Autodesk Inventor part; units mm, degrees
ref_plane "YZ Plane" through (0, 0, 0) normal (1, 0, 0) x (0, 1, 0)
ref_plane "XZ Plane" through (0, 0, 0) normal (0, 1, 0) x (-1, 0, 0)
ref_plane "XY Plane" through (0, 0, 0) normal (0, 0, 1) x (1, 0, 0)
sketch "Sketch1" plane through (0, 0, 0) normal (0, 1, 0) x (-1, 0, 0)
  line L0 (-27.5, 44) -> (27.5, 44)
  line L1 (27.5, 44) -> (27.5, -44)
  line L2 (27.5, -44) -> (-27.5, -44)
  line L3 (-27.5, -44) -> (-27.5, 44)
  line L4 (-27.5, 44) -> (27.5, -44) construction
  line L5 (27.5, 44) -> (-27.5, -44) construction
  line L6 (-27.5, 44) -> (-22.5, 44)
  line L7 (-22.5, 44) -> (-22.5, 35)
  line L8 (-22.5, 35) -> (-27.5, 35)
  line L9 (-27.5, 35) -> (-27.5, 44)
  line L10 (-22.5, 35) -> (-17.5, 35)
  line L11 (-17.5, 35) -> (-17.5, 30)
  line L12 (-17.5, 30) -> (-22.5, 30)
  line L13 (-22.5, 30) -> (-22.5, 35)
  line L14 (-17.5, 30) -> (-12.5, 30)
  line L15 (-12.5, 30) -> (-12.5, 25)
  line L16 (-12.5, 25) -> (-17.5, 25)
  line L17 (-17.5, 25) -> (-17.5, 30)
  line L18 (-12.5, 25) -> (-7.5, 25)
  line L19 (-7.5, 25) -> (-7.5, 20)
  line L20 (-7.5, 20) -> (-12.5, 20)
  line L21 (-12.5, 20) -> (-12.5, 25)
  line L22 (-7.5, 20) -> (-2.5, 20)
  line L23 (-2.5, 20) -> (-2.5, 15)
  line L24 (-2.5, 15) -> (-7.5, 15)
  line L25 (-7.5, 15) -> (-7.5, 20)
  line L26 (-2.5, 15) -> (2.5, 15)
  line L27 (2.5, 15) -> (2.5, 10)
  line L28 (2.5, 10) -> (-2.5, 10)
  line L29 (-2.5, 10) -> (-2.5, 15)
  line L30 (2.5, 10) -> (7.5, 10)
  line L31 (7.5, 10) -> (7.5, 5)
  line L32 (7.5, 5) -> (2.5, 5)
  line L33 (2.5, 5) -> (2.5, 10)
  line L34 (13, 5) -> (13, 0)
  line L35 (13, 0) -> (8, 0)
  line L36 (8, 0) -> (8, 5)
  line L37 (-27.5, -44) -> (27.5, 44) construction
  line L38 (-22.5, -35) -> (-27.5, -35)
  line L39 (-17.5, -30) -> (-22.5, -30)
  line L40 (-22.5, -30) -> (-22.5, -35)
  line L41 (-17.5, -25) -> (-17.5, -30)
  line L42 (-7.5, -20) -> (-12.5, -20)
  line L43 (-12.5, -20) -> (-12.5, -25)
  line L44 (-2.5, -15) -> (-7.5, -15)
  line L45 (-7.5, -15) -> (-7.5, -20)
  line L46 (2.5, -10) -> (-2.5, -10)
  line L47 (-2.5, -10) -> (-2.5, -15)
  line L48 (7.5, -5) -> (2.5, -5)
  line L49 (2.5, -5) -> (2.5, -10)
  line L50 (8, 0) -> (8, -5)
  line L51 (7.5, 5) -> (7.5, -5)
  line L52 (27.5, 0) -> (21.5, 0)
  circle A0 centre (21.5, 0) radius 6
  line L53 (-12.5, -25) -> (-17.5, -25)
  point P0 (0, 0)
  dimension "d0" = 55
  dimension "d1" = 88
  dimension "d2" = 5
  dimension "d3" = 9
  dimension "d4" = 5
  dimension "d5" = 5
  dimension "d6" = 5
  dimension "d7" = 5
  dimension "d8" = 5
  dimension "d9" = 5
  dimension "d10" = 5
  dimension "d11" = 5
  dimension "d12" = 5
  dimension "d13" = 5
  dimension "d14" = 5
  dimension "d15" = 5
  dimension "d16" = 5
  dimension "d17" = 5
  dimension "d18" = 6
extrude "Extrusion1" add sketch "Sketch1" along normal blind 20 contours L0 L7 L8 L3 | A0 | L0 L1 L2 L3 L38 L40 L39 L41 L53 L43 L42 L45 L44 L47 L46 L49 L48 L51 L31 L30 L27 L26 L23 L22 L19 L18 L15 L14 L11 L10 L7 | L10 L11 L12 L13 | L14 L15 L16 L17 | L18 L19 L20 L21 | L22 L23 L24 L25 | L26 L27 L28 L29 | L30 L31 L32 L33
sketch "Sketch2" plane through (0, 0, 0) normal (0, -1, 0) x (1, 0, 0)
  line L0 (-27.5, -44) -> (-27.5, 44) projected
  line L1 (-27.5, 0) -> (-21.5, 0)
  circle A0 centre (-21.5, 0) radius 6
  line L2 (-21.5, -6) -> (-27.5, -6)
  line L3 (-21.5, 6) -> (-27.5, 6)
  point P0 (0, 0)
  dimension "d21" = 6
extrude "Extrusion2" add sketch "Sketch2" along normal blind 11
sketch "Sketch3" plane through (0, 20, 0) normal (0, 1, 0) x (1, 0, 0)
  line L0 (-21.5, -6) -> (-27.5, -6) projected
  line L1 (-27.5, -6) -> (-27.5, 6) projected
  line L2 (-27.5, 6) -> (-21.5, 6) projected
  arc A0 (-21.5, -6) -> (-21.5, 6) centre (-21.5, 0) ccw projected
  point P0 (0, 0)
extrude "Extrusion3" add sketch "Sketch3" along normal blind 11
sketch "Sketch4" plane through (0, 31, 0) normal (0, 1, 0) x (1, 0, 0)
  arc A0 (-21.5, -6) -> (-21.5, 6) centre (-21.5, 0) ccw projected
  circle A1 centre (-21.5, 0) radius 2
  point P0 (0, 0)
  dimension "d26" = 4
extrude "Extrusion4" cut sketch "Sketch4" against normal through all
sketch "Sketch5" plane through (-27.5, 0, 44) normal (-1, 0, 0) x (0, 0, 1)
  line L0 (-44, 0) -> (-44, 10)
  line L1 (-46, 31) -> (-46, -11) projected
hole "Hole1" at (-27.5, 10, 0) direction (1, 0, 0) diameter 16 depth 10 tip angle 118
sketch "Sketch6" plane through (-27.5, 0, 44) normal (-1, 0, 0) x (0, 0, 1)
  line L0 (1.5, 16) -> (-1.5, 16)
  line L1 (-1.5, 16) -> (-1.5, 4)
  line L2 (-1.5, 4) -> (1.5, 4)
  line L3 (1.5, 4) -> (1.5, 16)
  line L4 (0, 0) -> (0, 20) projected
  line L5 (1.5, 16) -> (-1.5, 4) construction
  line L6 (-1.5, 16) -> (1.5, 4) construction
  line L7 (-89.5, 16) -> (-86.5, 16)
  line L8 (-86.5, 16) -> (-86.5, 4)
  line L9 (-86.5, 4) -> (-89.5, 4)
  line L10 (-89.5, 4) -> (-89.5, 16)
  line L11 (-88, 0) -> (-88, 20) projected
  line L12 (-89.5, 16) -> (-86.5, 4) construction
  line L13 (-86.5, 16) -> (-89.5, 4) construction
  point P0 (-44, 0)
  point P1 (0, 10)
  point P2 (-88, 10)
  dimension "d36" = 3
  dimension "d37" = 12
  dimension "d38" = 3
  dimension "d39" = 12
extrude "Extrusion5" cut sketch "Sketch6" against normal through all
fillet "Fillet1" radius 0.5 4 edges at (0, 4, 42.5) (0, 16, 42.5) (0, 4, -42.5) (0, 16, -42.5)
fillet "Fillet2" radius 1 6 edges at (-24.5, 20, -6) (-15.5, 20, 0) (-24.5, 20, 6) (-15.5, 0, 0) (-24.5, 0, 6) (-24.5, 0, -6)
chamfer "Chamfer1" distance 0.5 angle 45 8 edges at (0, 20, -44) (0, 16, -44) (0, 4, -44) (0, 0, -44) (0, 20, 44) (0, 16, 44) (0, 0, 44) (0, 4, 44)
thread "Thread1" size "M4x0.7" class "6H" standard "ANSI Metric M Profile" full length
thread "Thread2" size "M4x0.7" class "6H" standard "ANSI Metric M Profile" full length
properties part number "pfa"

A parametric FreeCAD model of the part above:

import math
import FreeCAD as App
import Part
import Sketcher

V = App.Vector
Q = App.Units.Quantity


def edges_at(feature, points):
    """Names of the edges that pass closest to the given points."""
    edges = feature.Shape.Edges
    near = lambda p: min(range(len(edges)), key=lambda i: edges[i].distToShape(Part.Vertex(*p))[0])
    return sorted({f"Edge{near(p) + 1}" for p in points})


def add_polygon(sketch, points):
    """Adds a closed chain of lines whose ends are joined by coincident constraints."""
    first, n = sketch.GeometryCount, len(points)
    for a, b in zip(points, points[1:] + points[:1]):
        sketch.addGeometry(Part.LineSegment(App.Vector(*a, 0), App.Vector(*b, 0)), False)
    for i in range(n):
        sketch.addConstraint(Sketcher.Constraint("Coincident", first + i, 2, first + (i + 1) % n, 1))

doc = App.newDocument("Part")
body = doc.addObject("PartDesign::Body", "Body")

# Sketch on XZ plane
sketch1 = body.newObject("Sketcher::SketchObject", "Sketch")
sketch1.AttachmentSupport = (doc.getObject("XZ_Plane"), [""])
sketch1.MapMode = "FlatFace"
add_polygon(sketch1, [(28, 44), (28, 35), (22, 35), (22, 30), (18, 30), (18, 25), (12, 25), (12, 20), (8, 20), (8, 15), (2, 15), (2, 10), (-2, 10), (-2, 5), (-8, 5), (-8, -5), (-2, -5), (-2, -10), (2, -10), (2, -15), (8, -15), (8, -20), (12, -20), (12, -25), (18, -25), (18, -30), (22, -30), (22, -35), (28, -35), (28, -44), (-28, -44), (-28, 44)])  # lines 0-31
sketch1.addConstraint(Sketcher.Constraint("Vertical", 0))
sketch1.addConstraint(Sketcher.Constraint("Horizontal", 1))
sketch1.addConstraint(Sketcher.Constraint("Vertical", 2))
sketch1.addConstraint(Sketcher.Constraint("Horizontal", 3))
sketch1.addConstraint(Sketcher.Constraint("Vertical", 4))
sketch1.addConstraint(Sketcher.Constraint("Horizontal", 5))
sketch1.addConstraint(Sketcher.Constraint("Vertical", 6))
sketch1.addConstraint(Sketcher.Constraint("Horizontal", 7))
sketch1.addConstraint(Sketcher.Constraint("Vertical", 8))
sketch1.addConstraint(Sketcher.Constraint("Horizontal", 9))
sketch1.addConstraint(Sketcher.Constraint("Vertical", 10))
sketch1.addConstraint(Sketcher.Constraint("Horizontal", 11))
sketch1.addConstraint(Sketcher.Constraint("Vertical", 12))
sketch1.addConstraint(Sketcher.Constraint("Horizontal", 13))
sketch1.addConstraint(Sketcher.Constraint("Vertical", 14))
sketch1.addConstraint(Sketcher.Constraint("Horizontal", 15))
sketch1.addConstraint(Sketcher.Constraint("Vertical", 16))
sketch1.addConstraint(Sketcher.Constraint("Horizontal", 17))
sketch1.addConstraint(Sketcher.Constraint("Vertical", 18))
sketch1.addConstraint(Sketcher.Constraint("Horizontal", 19))
sketch1.addConstraint(Sketcher.Constraint("Vertical", 20))
sketch1.addConstraint(Sketcher.Constraint("Horizontal", 21))
sketch1.addConstraint(Sketcher.Constraint("Vertical", 22))
sketch1.addConstraint(Sketcher.Constraint("Horizontal", 23))
sketch1.addConstraint(Sketcher.Constraint("Vertical", 24))
sketch1.addConstraint(Sketcher.Constraint("Horizontal", 25))
sketch1.addConstraint(Sketcher.Constraint("Vertical", 26))
sketch1.addConstraint(Sketcher.Constraint("Horizontal", 27))
sketch1.addConstraint(Sketcher.Constraint("Vertical", 28))
sketch1.addConstraint(Sketcher.Constraint("Horizontal", 29))
sketch1.addConstraint(Sketcher.Constraint("Vertical", 30))
sketch1.addConstraint(Sketcher.Constraint("Horizontal", 31))
sketch1.addConstraint(Sketcher.Constraint("Symmetric", 10, 2, 16, 2, -1, 1))
sketch1.addConstraint(Sketcher.Constraint("Symmetric", 28, 2, 30, 2, -1, 1))
sketch1.addConstraint(Sketcher.Constraint("Symmetric", 12, 2, 15, 2, -1))
sketch1.addConstraint(Sketcher.Constraint("Symmetric", 9, 2, 18, 2, -1))
sketch1.addConstraint(Sketcher.Constraint("Symmetric", 7, 2, 20, 2, -1))
sketch1.addConstraint(Sketcher.Constraint("Symmetric", 5, 2, 22, 2, -1))
sketch1.addConstraint(Sketcher.Constraint("Symmetric", 3, 2, 24, 2, -1))
sketch1.addConstraint(Sketcher.Constraint("Symmetric", 1, 2, 26, 2, -1))
sketch1.addConstraint(Sketcher.Constraint("Vertical", 0, 2, 27, 2))
sketch1.addConstraint(Sketcher.Constraint("Equal", 1, 3))
sketch1.addConstraint(Sketcher.Constraint("Equal", 3, 5))
sketch1.addConstraint(Sketcher.Constraint("Equal", 5, 7))
sketch1.addConstraint(Sketcher.Constraint("Equal", 7, 9))
sketch1.addConstraint(Sketcher.Constraint("Equal", 9, 11))
sketch1.addConstraint(Sketcher.Constraint("Equal", 11, 13))
sketch1.addConstraint(Sketcher.Constraint("Equal", 27, 2))
sketch1.addConstraint(Sketcher.Constraint("Equal", 2, 4))
sketch1.addConstraint(Sketcher.Constraint("Equal", 4, 6))
sketch1.addConstraint(Sketcher.Constraint("Equal", 6, 8))
sketch1.addConstraint(Sketcher.Constraint("Equal", 8, 10))
sketch1.addConstraint(Sketcher.Constraint("Equal", 10, 12))
sketch1.addConstraint(Sketcher.Constraint("DistanceX", 1, 2, 1, 1, Q("5 mm")))
sketch1.addConstraint(Sketcher.Constraint("DistanceY", 0, 2, 0, 1, Q("9 mm")))
sketch1.addConstraint(Sketcher.Constraint("DistanceY", 30, 1, 30, 2, Q("88 mm")))
pad1 = body.newObject("PartDesign::Pad", "Pad")
pad1.Profile = sketch1
pad1.Length = 20
pad1.Reversed = True

# Sketch on XZ plane
sketch2 = body.newObject("Sketcher::SketchObject", "Sketch001")
sketch2.AttachmentSupport = (doc.getObject("XZ_Plane"), [""])
sketch2.MapMode = "FlatFace"
sketch2.addGeometry(Part.LineSegment(V(-28, -6, 0), V(-22, -6, 0)), False)
sketch2.addGeometry(Part.ArcOfCircle(Part.Circle(V(-22, 0, 0), V(0, 0, 1), 6), math.radians(-90), math.radians(90)), False)
sketch2.addGeometry(Part.LineSegment(V(-22, 6, 0), V(-28, 6, 0)), False)
sketch2.addGeometry(Part.LineSegment(V(-28, 6, 0), V(-28, -6, 0)), False)
sketch2.addConstraint(Sketcher.Constraint("Tangent", 0, 2, 1, 1))
sketch2.addConstraint(Sketcher.Constraint("Tangent", 1, 2, 2, 1))
sketch2.addConstraint(Sketcher.Constraint("Coincident", 2, 2, 3, 1))
sketch2.addConstraint(Sketcher.Constraint("Coincident", 3, 2, 0, 1))
sketch2.addConstraint(Sketcher.Constraint("Horizontal", 0))
sketch2.addConstraint(Sketcher.Constraint("Horizontal", 2))
sketch2.addConstraint(Sketcher.Constraint("Vertical", 3))
sketch2.addConstraint(Sketcher.Constraint("PointOnObject", 1, 3, -1))
sketch2.addConstraint(Sketcher.Constraint("Radius", 1, Q("6 mm")))
sketch2.addConstraint(Sketcher.Constraint("DistanceX", 0, 1, 0, 2, Q("6 mm")))
sketch2.addConstraint(Sketcher.Constraint("DistanceX", 1, 3, -1, 1, Q("21.5 mm")))
pad2 = body.newObject("PartDesign::Pad", "Pad001")
pad2.Profile = sketch2
pad2.Length = 11

# Sketch on XZ plane
sketch3 = body.newObject("Sketcher::SketchObject", "Sketch002")
sketch3.AttachmentSupport = (doc.getObject("XZ_Plane"), [""])
sketch3.MapMode = "FlatFace"
sketch3.AttachmentOffset = App.Placement(V(0, 0, -20), App.Rotation())
sketch3.addGeometry(Part.LineSegment(V(-28, 6, 0), V(-22, 6, 0)), False)
sketch3.addGeometry(Part.ArcOfCircle(Part.Circle(V(-22, 0, 0), V(0, 0, 1), 6), math.radians(-90), math.radians(90)), False)
sketch3.addGeometry(Part.LineSegment(V(-22, -6, 0), V(-28, -6, 0)), False)
sketch3.addGeometry(Part.LineSegment(V(-28, -6, 0), V(-28, 6, 0)), False)
sketch3.addConstraint(Sketcher.Constraint("Tangent", 0, 2, 1, 2))
sketch3.addConstraint(Sketcher.Constraint("Tangent", 1, 1, 2, 1))
sketch3.addConstraint(Sketcher.Constraint("Coincident", 2, 2, 3, 1))
sketch3.addConstraint(Sketcher.Constraint("Coincident", 3, 2, 0, 1))
sketch3.addConstraint(Sketcher.Constraint("Horizontal", 0))
sketch3.addConstraint(Sketcher.Constraint("Horizontal", 2))
sketch3.addConstraint(Sketcher.Constraint("Vertical", 3))
sketch3.addConstraint(Sketcher.Constraint("PointOnObject", 1, 3, -1))
sketch3.addConstraint(Sketcher.Constraint("Radius", 1, Q("6 mm")))
sketch3.addConstraint(Sketcher.Constraint("DistanceX", 0, 1, 0, 2, Q("6 mm")))
sketch3.addConstraint(Sketcher.Constraint("DistanceX", 1, 3, -1, 1, Q("21.5 mm")))
pad3 = body.newObject("PartDesign::Pad", "Pad002")
pad3.Profile = sketch3
pad3.Length = 11
pad3.Reversed = True

# Sketch on XZ plane
sketch4 = body.newObject("Sketcher::SketchObject", "Sketch003")
sketch4.AttachmentSupport = (doc.getObject("XZ_Plane"), [""])
sketch4.MapMode = "FlatFace"
sketch4.AttachmentOffset = App.Placement(V(0, 0, -31), App.Rotation())
sketch4.addGeometry(Part.Circle(V(-21.5, 0, 0), V(0, 0, 1), 2), False)
sketch4.addConstraint(Sketcher.Constraint("PointOnObject", 0, 3, -1))
sketch4.addConstraint(Sketcher.Constraint("Diameter", 0, Q("4 mm")))
sketch4.addConstraint(Sketcher.Constraint("DistanceX", 0, 3, -1, 1, Q("21.5 mm")))
pocket1 = body.newObject("PartDesign::Pocket", "Pocket")
pocket1.Profile = sketch4
pocket1.Type = "ThroughAll"
pocket1.Reversed = True

# Sketch on YZ plane
sketch5 = body.newObject("Sketcher::SketchObject", "Sketch004")
sketch5.AttachmentSupport = (doc.getObject("YZ_Plane"), [""])
sketch5.MapMode = "FlatFace"
sketch5.AttachmentOffset = App.Placement(V(0, 0, -27.5), App.Rotation())
sketch5.addGeometry(Part.Circle(V(10, 0, 0), V(0, 0, 1), 8), False)
sketch5.addConstraint(Sketcher.Constraint("PointOnObject", 0, 3, -1))
sketch5.addConstraint(Sketcher.Constraint("Diameter", 0, Q("16 mm")))
sketch5.addConstraint(Sketcher.Constraint("DistanceX", -1, 1, 0, 3, Q("10 mm")))
doc.recompute()
hole = body.newObject("PartDesign::Hole", "Hole")
hole.Profile = sketch5
hole.ThreadType = "None"
hole.Diameter = 16
hole.DepthType = "Dimension"
hole.Depth = 10
hole.DrillPoint = "Angled"
hole.DrillPointAngle = 118
hole.Reversed = True

# Sketch on YZ plane
sketch6 = body.newObject("Sketcher::SketchObject", "Sketch005")
sketch6.AttachmentSupport = (doc.getObject("YZ_Plane"), [""])
sketch6.MapMode = "FlatFace"
sketch6.AttachmentOffset = App.Placement(V(0, 0, -27.5), App.Rotation())
add_polygon(sketch6, [(4, 45.5), (16, 45.5), (16, 42.5), (4, 42.5)])  # lines 0-3
add_polygon(sketch6, [(16, -45.5), (4, -45.5), (4, -42.5), (16, -42.5)])  # lines 4-7
sketch6.addConstraint(Sketcher.Constraint("Horizontal", 0))
sketch6.addConstraint(Sketcher.Constraint("Vertical", 1))
sketch6.addConstraint(Sketcher.Constraint("Horizontal", 2))
sketch6.addConstraint(Sketcher.Constraint("Vertical", 3))
sketch6.addConstraint(Sketcher.Constraint("Horizontal", 4))
sketch6.addConstraint(Sketcher.Constraint("Vertical", 5))
sketch6.addConstraint(Sketcher.Constraint("Horizontal", 6))
sketch6.addConstraint(Sketcher.Constraint("Vertical", 7))
sketch6.addConstraint(Sketcher.Constraint("Symmetric", 3, 2, 4, 2, -1))
sketch6.addConstraint(Sketcher.Constraint("Symmetric", 1, 2, 6, 2, -1))
sketch6.addConstraint(Sketcher.Constraint("DistanceX", 0, 1, 0, 2, Q("12 mm")))
sketch6.addConstraint(Sketcher.Constraint("DistanceY", 1, 2, 1, 1, Q("3 mm")))
sketch6.addConstraint(Sketcher.Constraint("DistanceX", -1, 1, 0, 2, Q("16 mm")))
sketch6.addConstraint(Sketcher.Constraint("DistanceY", 4, 2, 2, 2, Q("88 mm")))
pocket2 = body.newObject("PartDesign::Pocket", "Pocket001")
pocket2.Profile = sketch6
pocket2.Type = "ThroughAll"
pocket2.Reversed = True
doc.recompute()

fillet = body.newObject("PartDesign::Fillet", "Fillet")
fillet.Base = (pocket2, edges_at(pocket2, [
    (0, 4, 42.5),
    (0, 16, 42.5),
    (0, 4, -42.5),
    (0, 16, -42.5),
]))
fillet.Radius = 0.5
doc.recompute()

fillet2 = body.newObject("PartDesign::Fillet", "Fillet001")
fillet2.Base = (fillet, edges_at(fillet, [
    (-24.5, 20, -6),
    (-15.5, 20, 0),
    (-24.5, 20, 6),
    (-15.5, 0, 0),
    (-24.5, 0, 6),
    (-24.5, 0, -6),
]))
fillet2.Radius = 1
doc.recompute()

chamfer = body.newObject("PartDesign::Chamfer", "Chamfer")
chamfer.Base = (fillet2, edges_at(fillet2, [
    (0, 20, -44),
    (0, 16, -44),
    (0, 4, -44),
    (0, 0, -44),
    (0, 20, 44),
    (0, 16, 44),
    (0, 0, 44),
    (0, 4, 44),
]))
chamfer.Size = 0.5

doc.recompute()
